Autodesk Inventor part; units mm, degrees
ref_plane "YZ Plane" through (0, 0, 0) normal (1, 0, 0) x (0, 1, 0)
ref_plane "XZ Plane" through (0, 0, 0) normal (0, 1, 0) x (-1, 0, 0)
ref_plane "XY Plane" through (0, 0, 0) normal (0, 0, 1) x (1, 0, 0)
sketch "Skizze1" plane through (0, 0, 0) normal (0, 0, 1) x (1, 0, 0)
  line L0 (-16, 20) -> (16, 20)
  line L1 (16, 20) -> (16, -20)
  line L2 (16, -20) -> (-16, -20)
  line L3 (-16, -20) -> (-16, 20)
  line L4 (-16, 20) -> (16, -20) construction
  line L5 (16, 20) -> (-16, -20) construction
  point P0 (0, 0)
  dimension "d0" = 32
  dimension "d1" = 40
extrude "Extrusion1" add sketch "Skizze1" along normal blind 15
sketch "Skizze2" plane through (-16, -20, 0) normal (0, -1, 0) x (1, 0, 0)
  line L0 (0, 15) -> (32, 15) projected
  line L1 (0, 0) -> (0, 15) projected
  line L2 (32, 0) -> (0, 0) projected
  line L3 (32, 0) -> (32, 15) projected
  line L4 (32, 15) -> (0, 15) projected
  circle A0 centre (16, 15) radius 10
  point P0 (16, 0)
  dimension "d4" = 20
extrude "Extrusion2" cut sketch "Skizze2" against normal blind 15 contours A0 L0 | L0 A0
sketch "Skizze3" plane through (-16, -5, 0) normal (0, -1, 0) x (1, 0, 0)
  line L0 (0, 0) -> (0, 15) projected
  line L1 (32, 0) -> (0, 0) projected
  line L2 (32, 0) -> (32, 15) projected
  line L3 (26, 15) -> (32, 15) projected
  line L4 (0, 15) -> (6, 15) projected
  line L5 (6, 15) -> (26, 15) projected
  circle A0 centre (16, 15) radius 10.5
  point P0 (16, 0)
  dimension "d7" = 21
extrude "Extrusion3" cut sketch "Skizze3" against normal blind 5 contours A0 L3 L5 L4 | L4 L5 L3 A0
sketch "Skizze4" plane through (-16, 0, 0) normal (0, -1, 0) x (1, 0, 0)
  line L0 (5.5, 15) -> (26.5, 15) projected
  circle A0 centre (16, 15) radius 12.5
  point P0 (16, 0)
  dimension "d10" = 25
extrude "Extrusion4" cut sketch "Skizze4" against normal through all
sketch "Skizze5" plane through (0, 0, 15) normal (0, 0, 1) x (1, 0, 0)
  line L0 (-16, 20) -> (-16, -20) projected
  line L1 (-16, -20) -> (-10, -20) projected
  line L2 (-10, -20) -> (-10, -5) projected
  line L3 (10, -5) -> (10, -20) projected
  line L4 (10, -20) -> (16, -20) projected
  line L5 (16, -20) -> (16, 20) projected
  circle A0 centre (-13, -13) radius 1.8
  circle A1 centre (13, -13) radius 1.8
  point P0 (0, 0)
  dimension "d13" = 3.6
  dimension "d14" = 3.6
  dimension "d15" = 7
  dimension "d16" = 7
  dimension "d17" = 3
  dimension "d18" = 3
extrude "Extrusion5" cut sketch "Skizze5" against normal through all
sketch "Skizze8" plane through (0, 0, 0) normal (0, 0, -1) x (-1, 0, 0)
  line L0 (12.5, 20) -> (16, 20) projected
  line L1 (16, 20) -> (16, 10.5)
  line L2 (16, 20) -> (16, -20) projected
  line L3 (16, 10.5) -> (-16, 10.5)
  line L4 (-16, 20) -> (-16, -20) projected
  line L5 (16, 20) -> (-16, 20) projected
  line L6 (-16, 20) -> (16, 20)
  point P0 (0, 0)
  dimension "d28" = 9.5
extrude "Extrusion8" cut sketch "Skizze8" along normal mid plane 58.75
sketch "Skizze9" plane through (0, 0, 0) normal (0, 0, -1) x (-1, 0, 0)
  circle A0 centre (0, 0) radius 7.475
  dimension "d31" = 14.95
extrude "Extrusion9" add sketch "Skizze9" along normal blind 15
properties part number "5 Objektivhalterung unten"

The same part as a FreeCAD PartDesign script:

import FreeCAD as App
import Part
import Sketcher
from FreeCAD import Vector
Q = App.Units.Quantity


def add_polygon(sketch, points):
    """Adds a closed chain of lines whose ends are joined by coincident constraints."""
    first, n = sketch.GeometryCount, len(points)
    for a, b in zip(points, points[1:] + points[:1]):
        sketch.addGeometry(Part.LineSegment(App.Vector(*a, 0), App.Vector(*b, 0)), False)
    for i in range(n):
        sketch.addConstraint(Sketcher.Constraint("Coincident", first + i, 2, first + (i + 1) % n, 1))

doc = App.newDocument("Part")
body = doc.addObject("PartDesign::Body", "Body")

sketch1 = body.newObject("Sketcher::SketchObject", "Sketch")
sketch1.AttachmentSupport = (doc.getObject("XY_Plane"), [""])
sketch1.MapMode = "FlatFace"
add_polygon(sketch1, [(16, 20), (-16, 20), (-16, -20), (16, -20)])
sketch1.addConstraint(Sketcher.Constraint("Horizontal", 0))
sketch1.addConstraint(Sketcher.Constraint("Vertical", 1))
sketch1.addConstraint(Sketcher.Constraint("Horizontal", 2))
sketch1.addConstraint(Sketcher.Constraint("Vertical", 3))
sketch1.addConstraint(Sketcher.Constraint("Symmetric", 0, 2, 2, 2, -1, 1))
sketch1.addConstraint(Sketcher.Constraint("DistanceX", 0, 2, 0, 1, Q("32 mm")))
sketch1.addConstraint(Sketcher.Constraint("DistanceY", 1, 2, 1, 1, Q("40 mm")))
pad1 = body.newObject("PartDesign::Pad", "Pad")
pad1.Profile = sketch1
pad1.Length = 15

sketch2 = body.newObject("Sketcher::SketchObject", "Sketch001")
sketch2.AttachmentSupport = (doc.getObject("XZ_Plane"), [""])
sketch2.MapMode = "FlatFace"
sketch2.AttachmentOffset = App.Placement(Vector(0, 0, 20), App.Rotation())
sketch2.addGeometry(Part.Circle(Vector(0, 15, 0), Vector(0, 0, 1), 10), False)
sketch2.addConstraint(Sketcher.Constraint("PointOnObject", 0, 3, -2))
sketch2.addConstraint(Sketcher.Constraint("Diameter", 0, Q("20 mm")))
sketch2.addConstraint(Sketcher.Constraint("DistanceY", -1, 1, 0, 3, Q("15 mm")))
pocket1 = body.newObject("PartDesign::Pocket", "Pocket")
pocket1.Profile = sketch2
pocket1.Length = 15

sketch3 = body.newObject("Sketcher::SketchObject", "Sketch002")
sketch3.AttachmentSupport = (doc.getObject("XZ_Plane"), [""])
sketch3.MapMode = "FlatFace"
sketch3.AttachmentOffset = App.Placement(Vector(0, 0, 5), App.Rotation())
sketch3.addGeometry(Part.Circle(Vector(0, 15, 0), Vector(0, 0, 1), 10), False)
sketch3.addConstraint(Sketcher.Constraint("PointOnObject", 0, 3, -2))
sketch3.addConstraint(Sketcher.Constraint("Diameter", 0, Q("21 mm")))
sketch3.addConstraint(Sketcher.Constraint("DistanceY", -1, 1, 0, 3, Q("15 mm")))
pocket2 = body.newObject("PartDesign::Pocket", "Pocket001")
pocket2.Profile = sketch3
pocket2.Length = 5

sketch4 = body.newObject("Sketcher::SketchObject", "Sketch003")
sketch4.AttachmentSupport = (doc.getObject("XZ_Plane"), [""])
sketch4.MapMode = "FlatFace"
sketch4.addGeometry(Part.Circle(Vector(0, 15, 0), Vector(0, 0, 1), 12), False)
sketch4.addConstraint(Sketcher.Constraint("PointOnObject", 0, 3, -2))
sketch4.addConstraint(Sketcher.Constraint("Diameter", 0, Q("25 mm")))
sketch4.addConstraint(Sketcher.Constraint("DistanceY", -1, 1, 0, 3, Q("15 mm")))
pocket3 = body.newObject("PartDesign::Pocket", "Pocket002")
pocket3.Profile = sketch4
pocket3.Type = "ThroughAll"

sketch5 = body.newObject("Sketcher::SketchObject", "Sketch004")
sketch5.AttachmentSupport = (doc.getObject("XY_Plane"), [""])
sketch5.MapMode = "FlatFace"
sketch5.AttachmentOffset = App.Placement(Vector(0, 0, 15), App.Rotation())
sketch5.addGeometry(Part.Circle(Vector(-13, -13, 0), Vector(0, 0, 1), 1.8), False)
sketch5.addGeometry(Part.Circle(Vector(13, -13, 0), Vector(0, 0, 1), 1.8), False)
sketch5.addConstraint(Sketcher.Constraint("Equal", 0, 1))
sketch5.addConstraint(Sketcher.Constraint("Symmetric", 0, 3, 1, 3, -2))
sketch5.addConstraint(Sketcher.Constraint("Diameter", 0, Q("3.6 mm")))
sketch5.addConstraint(Sketcher.Constraint("DistanceX", 0, 3, -1, 1, Q("13 mm")))
sketch5.addConstraint(Sketcher.Constraint("DistanceY", 0, 3, -1, 1, Q("13 mm")))
pocket4 = body.newObject("PartDesign::Pocket", "Pocket003")
pocket4.Profile = sketch5
pocket4.Type = "ThroughAll"

sketch6 = body.newObject("Sketcher::SketchObject", "Sketch005")
sketch6.AttachmentSupport = (doc.getObject("XY_Plane"), [""])
sketch6.MapMode = "FlatFace"
add_polygon(sketch6, [(-16, 20), (16, 20), (16, 10), (-16, 10)])
sketch6.addConstraint(Sketcher.Constraint("Horizontal", 0))
sketch6.addConstraint(Sketcher.Constraint("Vertical", 1))
sketch6.addConstraint(Sketcher.Constraint("Horizontal", 2))
sketch6.addConstraint(Sketcher.Constraint("Vertical", 3))
sketch6.addConstraint(Sketcher.Constraint("DistanceY", 1, 2, 1, 1, Q("9.5 mm")))
sketch6.addConstraint(Sketcher.Constraint("DistanceX", 0, 1, 0, 2, Q("32 mm")))
sketch6.addConstraint(Sketcher.Constraint("DistanceX", -1, 1, 0, 2, Q("16 mm")))
sketch6.addConstraint(Sketcher.Constraint("DistanceY", -1, 1, 0, 2, Q("20 mm")))
pocket5 = body.newObject("PartDesign::Pocket", "Pocket004")
pocket5.Profile = sketch6
pocket5.Length = 58.75
pocket5.Midplane = True

sketch7 = body.newObject("Sketcher::SketchObject", "Sketch006")
sketch7.AttachmentSupport = (doc.getObject("XY_Plane"), [""])
sketch7.MapMode = "FlatFace"
sketch7.addGeometry(Part.Circle(Vector(0, 0, 0), Vector(0, 0, 1), 7), False)
sketch7.addConstraint(Sketcher.Constraint("Coincident", 0, 3, -1, 1))
sketch7.addConstraint(Sketcher.Constraint("Diameter", 0, Q("14.95 mm")))
pad2 = body.newObject("PartDesign::Pad", "Pad001")
pad2.Profile = sketch7
pad2.Length = 15
pad2.Reversed = True

doc.recompute()
